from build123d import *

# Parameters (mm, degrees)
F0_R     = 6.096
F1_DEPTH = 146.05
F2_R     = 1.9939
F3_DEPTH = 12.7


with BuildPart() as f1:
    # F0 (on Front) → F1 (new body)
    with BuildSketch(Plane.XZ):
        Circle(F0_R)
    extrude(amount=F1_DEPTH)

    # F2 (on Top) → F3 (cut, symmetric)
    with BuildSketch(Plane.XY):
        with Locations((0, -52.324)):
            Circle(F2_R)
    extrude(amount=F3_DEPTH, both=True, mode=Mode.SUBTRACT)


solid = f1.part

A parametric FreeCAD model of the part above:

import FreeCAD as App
import Part
import Sketcher

V = App.Vector
Q = App.Units.Quantity

doc = App.newDocument("Part")
params = doc.addObject("Spreadsheet::Sheet", "Params")
for row, (alias, value) in enumerate([
    ("sketch1_diameter", "0.48 in"),
    ("pad1_length", "5.75 in"),
    ("sketch2_diameter", "0.157 in"),
    ("pocket1_length", "1 in"),
], start=1):
    params.set(f"A{row}", alias)
    params.set(f"B{row}", "=" + value)
    params.setAlias(f"B{row}", alias)

body = doc.addObject("PartDesign::Body", "Body")

sketch1 = body.newObject("Sketcher::SketchObject", "Sketch")
sketch1.AttachmentSupport = (doc.getObject("XZ_Plane"), [""])
sketch1.MapMode = "FlatFace"
sketch1.addGeometry(Part.Circle(V(0, 0, 0), V(0, 0, 1), 6), False)
sketch1.addConstraint([
    Sketcher.Constraint("Coincident", 0, 3, -1, 1),
    Sketcher.Constraint("Diameter", 0, Q("0.48 in")),
])
sketch1.setExpression("Constraints[1]", "Params.sketch1_diameter")
pad1 = body.newObject("PartDesign::Pad", "Pad")
pad1.Profile = sketch1
pad1.setExpression("Length", "Params.pad1_length")

sketch2 = body.newObject("Sketcher::SketchObject", "Sketch001")
sketch2.AttachmentSupport = (doc.getObject("XY_Plane"), [""])
sketch2.MapMode = "FlatFace"
sketch2.addGeometry(Part.Circle(V(0, -52.3, 0), V(0, 0, 1), 2), False)
sketch2.addConstraint([
    Sketcher.Constraint("PointOnObject", 0, 3, -2),
    Sketcher.Constraint("Diameter", 0, Q("0.157 in")),
    Sketcher.Constraint("DistanceY", 0, 3, -1, 1, Q("2.06 in")),
])
sketch2.setExpression("Constraints[1]", "Params.sketch2_diameter")
pocket1 = body.newObject("PartDesign::Pocket", "Pocket")
pocket1.Profile = sketch2
pocket1.setExpression("Length", "Params.pocket1_length")
pocket1.Midplane = True

doc.recompute()
